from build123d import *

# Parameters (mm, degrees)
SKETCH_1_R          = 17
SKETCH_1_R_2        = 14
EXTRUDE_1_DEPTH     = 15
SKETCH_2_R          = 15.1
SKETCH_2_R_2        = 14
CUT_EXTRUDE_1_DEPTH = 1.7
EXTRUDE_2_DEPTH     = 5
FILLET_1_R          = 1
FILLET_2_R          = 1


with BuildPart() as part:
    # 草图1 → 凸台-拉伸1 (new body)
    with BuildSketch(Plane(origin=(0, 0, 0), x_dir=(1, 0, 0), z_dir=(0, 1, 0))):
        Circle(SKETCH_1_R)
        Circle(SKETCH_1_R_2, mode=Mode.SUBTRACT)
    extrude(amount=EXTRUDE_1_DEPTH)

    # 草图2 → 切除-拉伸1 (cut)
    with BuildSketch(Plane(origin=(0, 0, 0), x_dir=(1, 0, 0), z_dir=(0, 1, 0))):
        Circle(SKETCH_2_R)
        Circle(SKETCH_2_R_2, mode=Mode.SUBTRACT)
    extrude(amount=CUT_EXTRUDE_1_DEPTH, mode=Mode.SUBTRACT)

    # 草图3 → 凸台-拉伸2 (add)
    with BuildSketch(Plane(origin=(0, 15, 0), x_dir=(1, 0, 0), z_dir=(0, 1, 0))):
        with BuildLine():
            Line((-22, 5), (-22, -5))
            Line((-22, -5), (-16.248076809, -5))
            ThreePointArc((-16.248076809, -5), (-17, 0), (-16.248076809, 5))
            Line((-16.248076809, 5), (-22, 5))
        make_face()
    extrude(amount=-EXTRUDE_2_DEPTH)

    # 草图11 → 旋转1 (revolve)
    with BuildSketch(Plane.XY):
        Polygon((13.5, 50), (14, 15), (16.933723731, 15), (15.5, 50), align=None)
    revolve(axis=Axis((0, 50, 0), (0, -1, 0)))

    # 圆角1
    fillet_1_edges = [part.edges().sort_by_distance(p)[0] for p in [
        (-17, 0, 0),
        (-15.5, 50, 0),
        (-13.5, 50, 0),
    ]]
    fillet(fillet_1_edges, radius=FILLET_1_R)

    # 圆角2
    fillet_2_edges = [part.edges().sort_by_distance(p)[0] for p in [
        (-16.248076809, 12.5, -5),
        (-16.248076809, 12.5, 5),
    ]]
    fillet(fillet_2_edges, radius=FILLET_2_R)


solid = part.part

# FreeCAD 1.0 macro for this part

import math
import FreeCAD as App
import Part
import Sketcher
from FreeCAD import Vector


def edges_at(feature, points):
    """Names of the edges that pass closest to the given points."""
    edges = feature.Shape.Edges
    near = lambda p: min(range(len(edges)), key=lambda i: edges[i].distToShape(Part.Vertex(*p))[0])
    return sorted({f"Edge{near(p) + 1}" for p in points})

doc = App.newDocument("Part")
params = doc.addObject("Spreadsheet::Sheet", "Params")
for row, (alias, value) in enumerate([
    ("sketch1_diameter", "34 mm"),
    ("sketch1_diameter2", "28 mm"),
    ("pad1_length", "15 mm"),
    ("sketch2_diameter", "28 mm"),
    ("sketch2_diameter2", "30.2 mm"),
    ("pocket1_length", "1.7 mm"),
    ("sketch3_radius", "17 mm"),
    ("sketch3_height", "10 mm"),
    ("pad2_length", "5 mm"),
    ("sketch4_width", "2 mm"),
    ("revolution_angle", "360 deg"),
    ("fillet_radius", "1 mm"),
    ("fillet2_radius", "1 mm"),
], start=1):
    params.set(f"A{row}", alias)
    params.set(f"B{row}", "=" + value)
    params.setAlias(f"B{row}", alias)

body = doc.addObject("PartDesign::Body", "Body")

sketch1 = body.newObject("Sketcher::SketchObject", "Sketch")
sketch1.AttachmentSupport = (doc.getObject("XZ_Plane"), [""])
sketch1.MapMode = "FlatFace"
sketch1.addGeometry(Part.Circle(Vector(0, 0, 0), Vector(0, 0, 1), 17), False)
sketch1.addGeometry(Part.Circle(Vector(0, 0, 0), Vector(0, 0, 1), 14), False)
sketch1.addConstraint(Sketcher.Constraint("Coincident", 0, 3, -1, 1))
sketch1.addConstraint(Sketcher.Constraint("Coincident", 1, 3, -1, 1))
sketch1.addConstraint(Sketcher.Constraint("Diameter", 0, 34.0))
sketch1.addConstraint(Sketcher.Constraint("Diameter", 1, 28.0))
sketch1.setExpression("Constraints[2]", "Params.sketch1_diameter")
sketch1.setExpression("Constraints[3]", "Params.sketch1_diameter2")
pad1 = body.newObject("PartDesign::Pad", "Pad")
pad1.Profile = sketch1
pad1.setExpression("Length", "Params.pad1_length")
pad1.Reversed = True

sketch2 = body.newObject("Sketcher::SketchObject", "Sketch001")
sketch2.AttachmentSupport = (doc.getObject("XZ_Plane"), [""])
sketch2.MapMode = "FlatFace"
sketch2.addGeometry(Part.Circle(Vector(0, 0, 0), Vector(0, 0, 1), 15), False)
sketch2.addGeometry(Part.Circle(Vector(0, 0, 0), Vector(0, 0, 1), 14), False)
sketch2.addConstraint(Sketcher.Constraint("Coincident", 0, 3, -1, 1))
sketch2.addConstraint(Sketcher.Constraint("Coincident", 1, 3, -1, 1))
sketch2.addConstraint(Sketcher.Constraint("Diameter", 1, 28.0))
sketch2.addConstraint(Sketcher.Constraint("Diameter", 0, 30.2))
sketch2.setExpression("Constraints[2]", "Params.sketch2_diameter")
sketch2.setExpression("Constraints[3]", "Params.sketch2_diameter2")
pocket1 = body.newObject("PartDesign::Pocket", "Pocket")
pocket1.Profile = sketch2
pocket1.setExpression("Length", "Params.pocket1_length")

sketch3 = body.newObject("Sketcher::SketchObject", "Sketch002")
sketch3.AttachmentSupport = (doc.getObject("XZ_Plane"), [""])
sketch3.MapMode = "FlatFace"
sketch3.AttachmentOffset = App.Placement(Vector(0, 0, -15), App.Rotation())
sketch3.addGeometry(Part.LineSegment(Vector(-22, -5, 0), Vector(-22, 5, 0)), False)
sketch3.addGeometry(Part.LineSegment(Vector(-22, 5, 0), Vector(-16, 5, 0)), False)
sketch3.addGeometry(Part.ArcOfCircle(Part.Circle(Vector(0, 0, 0), Vector(0, 0, 1), 17), math.radians(163), math.radians(197)), False)
sketch3.addGeometry(Part.LineSegment(Vector(-16, -5, 0), Vector(-22, -5, 0)), False)
sketch3.addConstraint(Sketcher.Constraint("Coincident", 0, 2, 1, 1))
sketch3.addConstraint(Sketcher.Constraint("Coincident", 1, 2, 2, 1))
sketch3.addConstraint(Sketcher.Constraint("Coincident", 2, 2, 3, 1))
sketch3.addConstraint(Sketcher.Constraint("Coincident", 3, 2, 0, 1))
sketch3.addConstraint(Sketcher.Constraint("Vertical", 0))
sketch3.addConstraint(Sketcher.Constraint("Horizontal", 1))
sketch3.addConstraint(Sketcher.Constraint("Horizontal", 3))
sketch3.addConstraint(Sketcher.Constraint("Coincident", 2, 3, -1, 1))
sketch3.addConstraint(Sketcher.Constraint("Vertical", 1, 2, 2, 2))
sketch3.addConstraint(Sketcher.Constraint("Radius", 2, 17.0))
sketch3.addConstraint(Sketcher.Constraint("DistanceY", 0, 1, 0, 2, 10.0))
sketch3.addConstraint(Sketcher.Constraint("DistanceX", 0, 2, -1, 1, 22.0))
sketch3.setExpression("Constraints[9]", "Params.sketch3_radius")
sketch3.setExpression("Constraints[10]", "Params.sketch3_height")
pad2 = body.newObject("PartDesign::Pad", "Pad001")
pad2.Profile = sketch3
pad2.setExpression("Length", "Params.pad2_length")

sketch4 = body.newObject("Sketcher::SketchObject", "Sketch003")
sketch4.AttachmentSupport = (doc.getObject("XY_Plane"), [""])
sketch4.MapMode = "FlatFace"
sketch4.addGeometry(Part.LineSegment(Vector(13.5, 50, 0), Vector(14, 15, 0)), False)
sketch4.addGeometry(Part.LineSegment(Vector(14, 15, 0), Vector(16.9, 15, 0)), False)
sketch4.addGeometry(Part.LineSegment(Vector(16.9, 15, 0), Vector(15.5, 50, 0)), False)
sketch4.addGeometry(Part.LineSegment(Vector(15.5, 50, 0), Vector(13.5, 50, 0)), False)
sketch4.addConstraint(Sketcher.Constraint("Coincident", 0, 2, 1, 1))
sketch4.addConstraint(Sketcher.Constraint("Coincident", 1, 2, 2, 1))
sketch4.addConstraint(Sketcher.Constraint("Coincident", 2, 2, 3, 1))
sketch4.addConstraint(Sketcher.Constraint("Coincident", 3, 2, 0, 1))
sketch4.addConstraint(Sketcher.Constraint("Horizontal", 1))
sketch4.addConstraint(Sketcher.Constraint("Horizontal", 3))
sketch4.addConstraint(Sketcher.Constraint("DistanceX", 3, 2, 3, 1, 2.0))
sketch4.addConstraint(Sketcher.Constraint("DistanceX", -1, 1, 0, 2, 14.0))
sketch4.addConstraint(Sketcher.Constraint("DistanceY", -1, 1, 0, 2, 15.0))
sketch4.addConstraint(Sketcher.Constraint("DistanceY", -1, 1, 2, 2, 50.0))
sketch4.addConstraint(Sketcher.Constraint("DistanceX", -1, 1, 2, 2, 15.5))
sketch4.addConstraint(Sketcher.Constraint("DistanceX", 1, 1, 1, 2, 2.933724))
sketch4.setExpression("Constraints[6]", "Params.sketch4_width")
revolution = body.newObject("PartDesign::Revolution", "Revolution")
revolution.Profile = sketch4
revolution.ReferenceAxis = (sketch4, ["V_Axis"])
revolution.setExpression("Angle", "Params.revolution_angle")
doc.recompute()

fillet = body.newObject("PartDesign::Fillet", "Fillet")
fillet.Base = (revolution, edges_at(revolution, [(-17, 0, 0), (-15.5, 50, 0), (-13.5, 50, 0)]))
fillet.setExpression("Radius", "Params.fillet_radius")
doc.recompute()

fillet2 = body.newObject("PartDesign::Fillet", "Fillet001")
fillet2.Base = (fillet, edges_at(fillet, [(-16.248, 12.5, -5), (-16.248, 12.5, 5)]))
fillet2.setExpression("Radius", "Params.fillet2_radius")

doc.recompute()
